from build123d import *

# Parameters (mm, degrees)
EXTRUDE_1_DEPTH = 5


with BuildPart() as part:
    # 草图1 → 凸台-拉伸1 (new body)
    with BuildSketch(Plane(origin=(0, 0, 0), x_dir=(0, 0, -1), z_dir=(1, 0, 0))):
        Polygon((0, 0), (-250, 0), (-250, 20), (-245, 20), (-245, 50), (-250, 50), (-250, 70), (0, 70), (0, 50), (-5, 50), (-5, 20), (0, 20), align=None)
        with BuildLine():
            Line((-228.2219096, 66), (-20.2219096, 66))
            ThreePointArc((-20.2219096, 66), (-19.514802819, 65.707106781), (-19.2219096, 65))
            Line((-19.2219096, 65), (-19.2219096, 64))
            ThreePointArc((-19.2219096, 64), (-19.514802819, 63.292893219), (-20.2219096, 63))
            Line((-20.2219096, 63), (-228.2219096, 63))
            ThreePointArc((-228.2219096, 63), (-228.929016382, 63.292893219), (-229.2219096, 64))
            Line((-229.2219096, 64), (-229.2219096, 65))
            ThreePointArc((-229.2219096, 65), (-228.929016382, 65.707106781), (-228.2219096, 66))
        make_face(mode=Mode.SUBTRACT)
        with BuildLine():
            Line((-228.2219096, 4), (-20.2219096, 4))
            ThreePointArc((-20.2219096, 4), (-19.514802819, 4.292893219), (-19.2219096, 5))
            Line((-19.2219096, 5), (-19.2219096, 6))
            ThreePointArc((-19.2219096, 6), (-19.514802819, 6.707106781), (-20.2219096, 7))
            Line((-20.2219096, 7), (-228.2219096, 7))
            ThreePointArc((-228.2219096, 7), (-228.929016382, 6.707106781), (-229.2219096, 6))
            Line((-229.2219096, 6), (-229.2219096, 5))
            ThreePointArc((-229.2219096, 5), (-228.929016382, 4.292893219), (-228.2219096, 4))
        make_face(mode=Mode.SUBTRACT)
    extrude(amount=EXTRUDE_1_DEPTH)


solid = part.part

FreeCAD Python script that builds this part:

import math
import FreeCAD as App
import Part
import Sketcher
from FreeCAD import Vector
Q = App.Units.Quantity


def add_polygon(sketch, points):
    """Adds a closed chain of lines whose ends are joined by coincident constraints."""
    first, n = sketch.GeometryCount, len(points)
    for a, b in zip(points, points[1:] + points[:1]):
        sketch.addGeometry(Part.LineSegment(App.Vector(*a, 0), App.Vector(*b, 0)), False)
    for i in range(n):
        sketch.addConstraint(Sketcher.Constraint("Coincident", first + i, 2, first + (i + 1) % n, 1))

doc = App.newDocument("Part")
body = doc.addObject("PartDesign::Body", "Body")

# Sketch on YZ plane
sketch1 = body.newObject("Sketcher::SketchObject", "Sketch")
sketch1.AttachmentSupport = (doc.getObject("YZ_Plane"), [""])
sketch1.MapMode = "FlatFace"
add_polygon(sketch1, [(0, 250), (0, 0), (20, 0), (20, 5), (50, 5), (50, 0), (70, 0), (70, 250), (50, 250), (50, 245), (20, 245), (20, 250)])  # lines 0-11
sketch1.addGeometry(Part.ArcOfCircle(Part.Circle(Vector(5, 228.22191, 0), Vector(0, 0, 1), 1), math.radians(90), math.radians(180)), False)  # 12
sketch1.addGeometry(Part.LineSegment(Vector(5, 229.22191, 0), Vector(6, 229.22191, 0)), False)  # 13
sketch1.addGeometry(Part.ArcOfCircle(Part.Circle(Vector(6, 228.22191, 0), Vector(0, 0, 1), 1), math.radians(0), math.radians(90)), False)  # 14
sketch1.addGeometry(Part.LineSegment(Vector(7, 228.22191, 0), Vector(7, 20.22191, 0)), False)  # 15
sketch1.addGeometry(Part.ArcOfCircle(Part.Circle(Vector(6, 20.22191, 0), Vector(0, 0, 1), 1), math.radians(-90), math.radians(0)), False)  # 16
sketch1.addGeometry(Part.LineSegment(Vector(6, 19.22191, 0), Vector(5, 19.22191, 0)), False)  # 17
sketch1.addGeometry(Part.ArcOfCircle(Part.Circle(Vector(5, 20.22191, 0), Vector(0, 0, 1), 1), math.radians(-180), math.radians(-90)), False)  # 18
sketch1.addGeometry(Part.LineSegment(Vector(4, 20.22191, 0), Vector(4, 228.22191, 0)), False)  # 19
sketch1.addGeometry(Part.LineSegment(Vector(66, 228.22191, 0), Vector(66, 20.22191, 0)), False)  # 20
sketch1.addGeometry(Part.ArcOfCircle(Part.Circle(Vector(65, 20.22191, 0), Vector(0, 0, 1), 1), math.radians(-90), math.radians(0)), False)  # 21
sketch1.addGeometry(Part.LineSegment(Vector(65, 19.22191, 0), Vector(64, 19.22191, 0)), False)  # 22
sketch1.addGeometry(Part.ArcOfCircle(Part.Circle(Vector(64, 20.22191, 0), Vector(0, 0, 1), 1), math.radians(-180), math.radians(-90)), False)  # 23
sketch1.addGeometry(Part.LineSegment(Vector(63, 20.22191, 0), Vector(63, 228.22191, 0)), False)  # 24
sketch1.addGeometry(Part.ArcOfCircle(Part.Circle(Vector(64, 228.22191, 0), Vector(0, 0, 1), 1), math.radians(90), math.radians(180)), False)  # 25
sketch1.addGeometry(Part.LineSegment(Vector(64, 229.22191, 0), Vector(65, 229.22191, 0)), False)  # 26
sketch1.addGeometry(Part.ArcOfCircle(Part.Circle(Vector(65, 228.22191, 0), Vector(0, 0, 1), 1), math.radians(0), math.radians(90)), False)  # 27
sketch1.addConstraint(Sketcher.Constraint("Tangent", 12, 1, 13, 1))
sketch1.addConstraint(Sketcher.Constraint("Tangent", 13, 2, 14, 2))
sketch1.addConstraint(Sketcher.Constraint("Tangent", 14, 1, 15, 1))
sketch1.addConstraint(Sketcher.Constraint("Tangent", 15, 2, 16, 2))
sketch1.addConstraint(Sketcher.Constraint("Tangent", 16, 1, 17, 1))
sketch1.addConstraint(Sketcher.Constraint("Tangent", 17, 2, 18, 2))
sketch1.addConstraint(Sketcher.Constraint("Tangent", 18, 1, 19, 1))
sketch1.addConstraint(Sketcher.Constraint("Tangent", 19, 2, 12, 2))
sketch1.addConstraint(Sketcher.Constraint("Tangent", 20, 2, 21, 2))
sketch1.addConstraint(Sketcher.Constraint("Tangent", 21, 1, 22, 1))
sketch1.addConstraint(Sketcher.Constraint("Tangent", 22, 2, 23, 2))
sketch1.addConstraint(Sketcher.Constraint("Tangent", 23, 1, 24, 1))
sketch1.addConstraint(Sketcher.Constraint("Tangent", 24, 2, 25, 2))
sketch1.addConstraint(Sketcher.Constraint("Tangent", 25, 1, 26, 1))
sketch1.addConstraint(Sketcher.Constraint("Tangent", 26, 2, 27, 2))
sketch1.addConstraint(Sketcher.Constraint("Tangent", 27, 1, 20, 1))
sketch1.addConstraint(Sketcher.Constraint("Vertical", 0))
sketch1.addConstraint(Sketcher.Constraint("Horizontal", 1))
sketch1.addConstraint(Sketcher.Constraint("Vertical", 2))
sketch1.addConstraint(Sketcher.Constraint("Horizontal", 3))
sketch1.addConstraint(Sketcher.Constraint("Vertical", 4))
sketch1.addConstraint(Sketcher.Constraint("Horizontal", 5))
sketch1.addConstraint(Sketcher.Constraint("Vertical", 6))
sketch1.addConstraint(Sketcher.Constraint("Horizontal", 7))
sketch1.addConstraint(Sketcher.Constraint("Vertical", 8))
sketch1.addConstraint(Sketcher.Constraint("Horizontal", 9))
sketch1.addConstraint(Sketcher.Constraint("Vertical", 10))
sketch1.addConstraint(Sketcher.Constraint("Horizontal", 11))
sketch1.addConstraint(Sketcher.Constraint("Horizontal", 13))
sketch1.addConstraint(Sketcher.Constraint("Vertical", 15))
sketch1.addConstraint(Sketcher.Constraint("Horizontal", 17))
sketch1.addConstraint(Sketcher.Constraint("Vertical", 19))
sketch1.addConstraint(Sketcher.Constraint("Vertical", 20))
sketch1.addConstraint(Sketcher.Constraint("Horizontal", 22))
sketch1.addConstraint(Sketcher.Constraint("Vertical", 24))
sketch1.addConstraint(Sketcher.Constraint("Horizontal", 26))
sketch1.addConstraint(Sketcher.Constraint("Coincident", 0, 2, -1, 1))
sketch1.addConstraint(Sketcher.Constraint("Equal", 12, 14))
sketch1.addConstraint(Sketcher.Constraint("Equal", 14, 16))
sketch1.addConstraint(Sketcher.Constraint("Equal", 16, 18))
sketch1.addConstraint(Sketcher.Constraint("Equal", 18, 21))
sketch1.addConstraint(Sketcher.Constraint("Equal", 21, 23))
sketch1.addConstraint(Sketcher.Constraint("Equal", 23, 25))
sketch1.addConstraint(Sketcher.Constraint("Equal", 25, 27))
sketch1.addConstraint(Sketcher.Constraint("PointOnObject", 4, 2, -1))
sketch1.addConstraint(Sketcher.Constraint("Horizontal", 18, 3, 21, 3))
sketch1.addConstraint(Sketcher.Constraint("Horizontal", 14, 3, 25, 3))
sketch1.addConstraint(Sketcher.Constraint("Horizontal", 7, 2, 10, 2))
sketch1.addConstraint(Sketcher.Constraint("Vertical", 4, 2, 7, 2))
sketch1.addConstraint(Sketcher.Constraint("Vertical", 2, 2, 9, 2))
sketch1.addConstraint(Sketcher.Constraint("Equal", 1, 5))
sketch1.addConstraint(Sketcher.Constraint("Equal", 17, 22))
sketch1.addConstraint(Sketcher.Constraint("Equal", 4, 8))
sketch1.addConstraint(Sketcher.Constraint("Radius", 12, Q("1 mm")))
sketch1.addConstraint(Sketcher.Constraint("DistanceX", 1, 1, 1, 2, Q("20 mm")))
sketch1.addConstraint(Sketcher.Constraint("DistanceX", 3, 1, 3, 2, Q("30 mm")))
sketch1.addConstraint(Sketcher.Constraint("DistanceX", 13, 1, 13, 2, Q("1 mm")))
sketch1.addConstraint(Sketcher.Constraint("DistanceY", 0, 2, 0, 1, Q("250 mm")))
sketch1.addConstraint(Sketcher.Constraint("DistanceY", 2, 1, 2, 2, Q("5 mm")))
sketch1.addConstraint(Sketcher.Constraint("DistanceY", 15, 2, 15, 1, Q("208 mm")))
sketch1.addConstraint(Sketcher.Constraint("DistanceX", -1, 1, 12, 3, Q("5 mm")))
sketch1.addConstraint(Sketcher.Constraint("DistanceX", -1, 1, 21, 3, Q("65 mm")))
sketch1.addConstraint(Sketcher.Constraint("DistanceY", -1, 1, 12, 3, Q("228.22191 mm")))
pad1 = body.newObject("PartDesign::Pad", "Pad")
pad1.Profile = sketch1
pad1.Length = 5

doc.recompute()
